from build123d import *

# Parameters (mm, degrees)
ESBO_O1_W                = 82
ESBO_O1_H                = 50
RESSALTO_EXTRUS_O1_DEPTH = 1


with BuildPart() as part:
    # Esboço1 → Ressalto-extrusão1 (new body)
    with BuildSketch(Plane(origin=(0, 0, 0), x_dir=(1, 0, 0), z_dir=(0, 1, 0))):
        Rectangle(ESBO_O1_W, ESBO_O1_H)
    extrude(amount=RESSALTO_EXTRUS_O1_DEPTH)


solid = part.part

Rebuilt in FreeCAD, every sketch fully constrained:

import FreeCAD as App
import Part
import Sketcher
Q = App.Units.Quantity


def add_polygon(sketch, points):
    """Adds a closed chain of lines whose ends are joined by coincident constraints."""
    first, n = sketch.GeometryCount, len(points)
    for a, b in zip(points, points[1:] + points[:1]):
        sketch.addGeometry(Part.LineSegment(App.Vector(*a, 0), App.Vector(*b, 0)), False)
    for i in range(n):
        sketch.addConstraint(Sketcher.Constraint("Coincident", first + i, 2, first + (i + 1) % n, 1))

doc = App.newDocument("Part")
body = doc.addObject("PartDesign::Body", "Body")

sketch1 = doc.addObject("Sketcher::SketchObject", "Sketch")
body.addObject(sketch1)
sketch1.AttachmentSupport = (doc.XZ_Plane, [""])
sketch1.MapMode = "FlatFace"
add_polygon(sketch1, [(-41, -25), (-41, 25), (41, 25), (41, -25)])
sketch1.addConstraint([
    Sketcher.Constraint("Vertical", 0),
    Sketcher.Constraint("Horizontal", 1),
    Sketcher.Constraint("Vertical", 2),
    Sketcher.Constraint("Horizontal", 3),
    Sketcher.Constraint("Symmetric", 0, 2, 2, 2, -1, 1),
    Sketcher.Constraint("DistanceX", 1, 1, 1, 2, Q("82 mm")),
    Sketcher.Constraint("DistanceY", 0, 1, 0, 2, Q("50 mm")),
])
pad1 = doc.addObject("PartDesign::Pad", "Pad")
body.addObject(pad1)
pad1.Profile = sketch1
pad1.Length = 1
pad1.Reversed = True

doc.recompute()
